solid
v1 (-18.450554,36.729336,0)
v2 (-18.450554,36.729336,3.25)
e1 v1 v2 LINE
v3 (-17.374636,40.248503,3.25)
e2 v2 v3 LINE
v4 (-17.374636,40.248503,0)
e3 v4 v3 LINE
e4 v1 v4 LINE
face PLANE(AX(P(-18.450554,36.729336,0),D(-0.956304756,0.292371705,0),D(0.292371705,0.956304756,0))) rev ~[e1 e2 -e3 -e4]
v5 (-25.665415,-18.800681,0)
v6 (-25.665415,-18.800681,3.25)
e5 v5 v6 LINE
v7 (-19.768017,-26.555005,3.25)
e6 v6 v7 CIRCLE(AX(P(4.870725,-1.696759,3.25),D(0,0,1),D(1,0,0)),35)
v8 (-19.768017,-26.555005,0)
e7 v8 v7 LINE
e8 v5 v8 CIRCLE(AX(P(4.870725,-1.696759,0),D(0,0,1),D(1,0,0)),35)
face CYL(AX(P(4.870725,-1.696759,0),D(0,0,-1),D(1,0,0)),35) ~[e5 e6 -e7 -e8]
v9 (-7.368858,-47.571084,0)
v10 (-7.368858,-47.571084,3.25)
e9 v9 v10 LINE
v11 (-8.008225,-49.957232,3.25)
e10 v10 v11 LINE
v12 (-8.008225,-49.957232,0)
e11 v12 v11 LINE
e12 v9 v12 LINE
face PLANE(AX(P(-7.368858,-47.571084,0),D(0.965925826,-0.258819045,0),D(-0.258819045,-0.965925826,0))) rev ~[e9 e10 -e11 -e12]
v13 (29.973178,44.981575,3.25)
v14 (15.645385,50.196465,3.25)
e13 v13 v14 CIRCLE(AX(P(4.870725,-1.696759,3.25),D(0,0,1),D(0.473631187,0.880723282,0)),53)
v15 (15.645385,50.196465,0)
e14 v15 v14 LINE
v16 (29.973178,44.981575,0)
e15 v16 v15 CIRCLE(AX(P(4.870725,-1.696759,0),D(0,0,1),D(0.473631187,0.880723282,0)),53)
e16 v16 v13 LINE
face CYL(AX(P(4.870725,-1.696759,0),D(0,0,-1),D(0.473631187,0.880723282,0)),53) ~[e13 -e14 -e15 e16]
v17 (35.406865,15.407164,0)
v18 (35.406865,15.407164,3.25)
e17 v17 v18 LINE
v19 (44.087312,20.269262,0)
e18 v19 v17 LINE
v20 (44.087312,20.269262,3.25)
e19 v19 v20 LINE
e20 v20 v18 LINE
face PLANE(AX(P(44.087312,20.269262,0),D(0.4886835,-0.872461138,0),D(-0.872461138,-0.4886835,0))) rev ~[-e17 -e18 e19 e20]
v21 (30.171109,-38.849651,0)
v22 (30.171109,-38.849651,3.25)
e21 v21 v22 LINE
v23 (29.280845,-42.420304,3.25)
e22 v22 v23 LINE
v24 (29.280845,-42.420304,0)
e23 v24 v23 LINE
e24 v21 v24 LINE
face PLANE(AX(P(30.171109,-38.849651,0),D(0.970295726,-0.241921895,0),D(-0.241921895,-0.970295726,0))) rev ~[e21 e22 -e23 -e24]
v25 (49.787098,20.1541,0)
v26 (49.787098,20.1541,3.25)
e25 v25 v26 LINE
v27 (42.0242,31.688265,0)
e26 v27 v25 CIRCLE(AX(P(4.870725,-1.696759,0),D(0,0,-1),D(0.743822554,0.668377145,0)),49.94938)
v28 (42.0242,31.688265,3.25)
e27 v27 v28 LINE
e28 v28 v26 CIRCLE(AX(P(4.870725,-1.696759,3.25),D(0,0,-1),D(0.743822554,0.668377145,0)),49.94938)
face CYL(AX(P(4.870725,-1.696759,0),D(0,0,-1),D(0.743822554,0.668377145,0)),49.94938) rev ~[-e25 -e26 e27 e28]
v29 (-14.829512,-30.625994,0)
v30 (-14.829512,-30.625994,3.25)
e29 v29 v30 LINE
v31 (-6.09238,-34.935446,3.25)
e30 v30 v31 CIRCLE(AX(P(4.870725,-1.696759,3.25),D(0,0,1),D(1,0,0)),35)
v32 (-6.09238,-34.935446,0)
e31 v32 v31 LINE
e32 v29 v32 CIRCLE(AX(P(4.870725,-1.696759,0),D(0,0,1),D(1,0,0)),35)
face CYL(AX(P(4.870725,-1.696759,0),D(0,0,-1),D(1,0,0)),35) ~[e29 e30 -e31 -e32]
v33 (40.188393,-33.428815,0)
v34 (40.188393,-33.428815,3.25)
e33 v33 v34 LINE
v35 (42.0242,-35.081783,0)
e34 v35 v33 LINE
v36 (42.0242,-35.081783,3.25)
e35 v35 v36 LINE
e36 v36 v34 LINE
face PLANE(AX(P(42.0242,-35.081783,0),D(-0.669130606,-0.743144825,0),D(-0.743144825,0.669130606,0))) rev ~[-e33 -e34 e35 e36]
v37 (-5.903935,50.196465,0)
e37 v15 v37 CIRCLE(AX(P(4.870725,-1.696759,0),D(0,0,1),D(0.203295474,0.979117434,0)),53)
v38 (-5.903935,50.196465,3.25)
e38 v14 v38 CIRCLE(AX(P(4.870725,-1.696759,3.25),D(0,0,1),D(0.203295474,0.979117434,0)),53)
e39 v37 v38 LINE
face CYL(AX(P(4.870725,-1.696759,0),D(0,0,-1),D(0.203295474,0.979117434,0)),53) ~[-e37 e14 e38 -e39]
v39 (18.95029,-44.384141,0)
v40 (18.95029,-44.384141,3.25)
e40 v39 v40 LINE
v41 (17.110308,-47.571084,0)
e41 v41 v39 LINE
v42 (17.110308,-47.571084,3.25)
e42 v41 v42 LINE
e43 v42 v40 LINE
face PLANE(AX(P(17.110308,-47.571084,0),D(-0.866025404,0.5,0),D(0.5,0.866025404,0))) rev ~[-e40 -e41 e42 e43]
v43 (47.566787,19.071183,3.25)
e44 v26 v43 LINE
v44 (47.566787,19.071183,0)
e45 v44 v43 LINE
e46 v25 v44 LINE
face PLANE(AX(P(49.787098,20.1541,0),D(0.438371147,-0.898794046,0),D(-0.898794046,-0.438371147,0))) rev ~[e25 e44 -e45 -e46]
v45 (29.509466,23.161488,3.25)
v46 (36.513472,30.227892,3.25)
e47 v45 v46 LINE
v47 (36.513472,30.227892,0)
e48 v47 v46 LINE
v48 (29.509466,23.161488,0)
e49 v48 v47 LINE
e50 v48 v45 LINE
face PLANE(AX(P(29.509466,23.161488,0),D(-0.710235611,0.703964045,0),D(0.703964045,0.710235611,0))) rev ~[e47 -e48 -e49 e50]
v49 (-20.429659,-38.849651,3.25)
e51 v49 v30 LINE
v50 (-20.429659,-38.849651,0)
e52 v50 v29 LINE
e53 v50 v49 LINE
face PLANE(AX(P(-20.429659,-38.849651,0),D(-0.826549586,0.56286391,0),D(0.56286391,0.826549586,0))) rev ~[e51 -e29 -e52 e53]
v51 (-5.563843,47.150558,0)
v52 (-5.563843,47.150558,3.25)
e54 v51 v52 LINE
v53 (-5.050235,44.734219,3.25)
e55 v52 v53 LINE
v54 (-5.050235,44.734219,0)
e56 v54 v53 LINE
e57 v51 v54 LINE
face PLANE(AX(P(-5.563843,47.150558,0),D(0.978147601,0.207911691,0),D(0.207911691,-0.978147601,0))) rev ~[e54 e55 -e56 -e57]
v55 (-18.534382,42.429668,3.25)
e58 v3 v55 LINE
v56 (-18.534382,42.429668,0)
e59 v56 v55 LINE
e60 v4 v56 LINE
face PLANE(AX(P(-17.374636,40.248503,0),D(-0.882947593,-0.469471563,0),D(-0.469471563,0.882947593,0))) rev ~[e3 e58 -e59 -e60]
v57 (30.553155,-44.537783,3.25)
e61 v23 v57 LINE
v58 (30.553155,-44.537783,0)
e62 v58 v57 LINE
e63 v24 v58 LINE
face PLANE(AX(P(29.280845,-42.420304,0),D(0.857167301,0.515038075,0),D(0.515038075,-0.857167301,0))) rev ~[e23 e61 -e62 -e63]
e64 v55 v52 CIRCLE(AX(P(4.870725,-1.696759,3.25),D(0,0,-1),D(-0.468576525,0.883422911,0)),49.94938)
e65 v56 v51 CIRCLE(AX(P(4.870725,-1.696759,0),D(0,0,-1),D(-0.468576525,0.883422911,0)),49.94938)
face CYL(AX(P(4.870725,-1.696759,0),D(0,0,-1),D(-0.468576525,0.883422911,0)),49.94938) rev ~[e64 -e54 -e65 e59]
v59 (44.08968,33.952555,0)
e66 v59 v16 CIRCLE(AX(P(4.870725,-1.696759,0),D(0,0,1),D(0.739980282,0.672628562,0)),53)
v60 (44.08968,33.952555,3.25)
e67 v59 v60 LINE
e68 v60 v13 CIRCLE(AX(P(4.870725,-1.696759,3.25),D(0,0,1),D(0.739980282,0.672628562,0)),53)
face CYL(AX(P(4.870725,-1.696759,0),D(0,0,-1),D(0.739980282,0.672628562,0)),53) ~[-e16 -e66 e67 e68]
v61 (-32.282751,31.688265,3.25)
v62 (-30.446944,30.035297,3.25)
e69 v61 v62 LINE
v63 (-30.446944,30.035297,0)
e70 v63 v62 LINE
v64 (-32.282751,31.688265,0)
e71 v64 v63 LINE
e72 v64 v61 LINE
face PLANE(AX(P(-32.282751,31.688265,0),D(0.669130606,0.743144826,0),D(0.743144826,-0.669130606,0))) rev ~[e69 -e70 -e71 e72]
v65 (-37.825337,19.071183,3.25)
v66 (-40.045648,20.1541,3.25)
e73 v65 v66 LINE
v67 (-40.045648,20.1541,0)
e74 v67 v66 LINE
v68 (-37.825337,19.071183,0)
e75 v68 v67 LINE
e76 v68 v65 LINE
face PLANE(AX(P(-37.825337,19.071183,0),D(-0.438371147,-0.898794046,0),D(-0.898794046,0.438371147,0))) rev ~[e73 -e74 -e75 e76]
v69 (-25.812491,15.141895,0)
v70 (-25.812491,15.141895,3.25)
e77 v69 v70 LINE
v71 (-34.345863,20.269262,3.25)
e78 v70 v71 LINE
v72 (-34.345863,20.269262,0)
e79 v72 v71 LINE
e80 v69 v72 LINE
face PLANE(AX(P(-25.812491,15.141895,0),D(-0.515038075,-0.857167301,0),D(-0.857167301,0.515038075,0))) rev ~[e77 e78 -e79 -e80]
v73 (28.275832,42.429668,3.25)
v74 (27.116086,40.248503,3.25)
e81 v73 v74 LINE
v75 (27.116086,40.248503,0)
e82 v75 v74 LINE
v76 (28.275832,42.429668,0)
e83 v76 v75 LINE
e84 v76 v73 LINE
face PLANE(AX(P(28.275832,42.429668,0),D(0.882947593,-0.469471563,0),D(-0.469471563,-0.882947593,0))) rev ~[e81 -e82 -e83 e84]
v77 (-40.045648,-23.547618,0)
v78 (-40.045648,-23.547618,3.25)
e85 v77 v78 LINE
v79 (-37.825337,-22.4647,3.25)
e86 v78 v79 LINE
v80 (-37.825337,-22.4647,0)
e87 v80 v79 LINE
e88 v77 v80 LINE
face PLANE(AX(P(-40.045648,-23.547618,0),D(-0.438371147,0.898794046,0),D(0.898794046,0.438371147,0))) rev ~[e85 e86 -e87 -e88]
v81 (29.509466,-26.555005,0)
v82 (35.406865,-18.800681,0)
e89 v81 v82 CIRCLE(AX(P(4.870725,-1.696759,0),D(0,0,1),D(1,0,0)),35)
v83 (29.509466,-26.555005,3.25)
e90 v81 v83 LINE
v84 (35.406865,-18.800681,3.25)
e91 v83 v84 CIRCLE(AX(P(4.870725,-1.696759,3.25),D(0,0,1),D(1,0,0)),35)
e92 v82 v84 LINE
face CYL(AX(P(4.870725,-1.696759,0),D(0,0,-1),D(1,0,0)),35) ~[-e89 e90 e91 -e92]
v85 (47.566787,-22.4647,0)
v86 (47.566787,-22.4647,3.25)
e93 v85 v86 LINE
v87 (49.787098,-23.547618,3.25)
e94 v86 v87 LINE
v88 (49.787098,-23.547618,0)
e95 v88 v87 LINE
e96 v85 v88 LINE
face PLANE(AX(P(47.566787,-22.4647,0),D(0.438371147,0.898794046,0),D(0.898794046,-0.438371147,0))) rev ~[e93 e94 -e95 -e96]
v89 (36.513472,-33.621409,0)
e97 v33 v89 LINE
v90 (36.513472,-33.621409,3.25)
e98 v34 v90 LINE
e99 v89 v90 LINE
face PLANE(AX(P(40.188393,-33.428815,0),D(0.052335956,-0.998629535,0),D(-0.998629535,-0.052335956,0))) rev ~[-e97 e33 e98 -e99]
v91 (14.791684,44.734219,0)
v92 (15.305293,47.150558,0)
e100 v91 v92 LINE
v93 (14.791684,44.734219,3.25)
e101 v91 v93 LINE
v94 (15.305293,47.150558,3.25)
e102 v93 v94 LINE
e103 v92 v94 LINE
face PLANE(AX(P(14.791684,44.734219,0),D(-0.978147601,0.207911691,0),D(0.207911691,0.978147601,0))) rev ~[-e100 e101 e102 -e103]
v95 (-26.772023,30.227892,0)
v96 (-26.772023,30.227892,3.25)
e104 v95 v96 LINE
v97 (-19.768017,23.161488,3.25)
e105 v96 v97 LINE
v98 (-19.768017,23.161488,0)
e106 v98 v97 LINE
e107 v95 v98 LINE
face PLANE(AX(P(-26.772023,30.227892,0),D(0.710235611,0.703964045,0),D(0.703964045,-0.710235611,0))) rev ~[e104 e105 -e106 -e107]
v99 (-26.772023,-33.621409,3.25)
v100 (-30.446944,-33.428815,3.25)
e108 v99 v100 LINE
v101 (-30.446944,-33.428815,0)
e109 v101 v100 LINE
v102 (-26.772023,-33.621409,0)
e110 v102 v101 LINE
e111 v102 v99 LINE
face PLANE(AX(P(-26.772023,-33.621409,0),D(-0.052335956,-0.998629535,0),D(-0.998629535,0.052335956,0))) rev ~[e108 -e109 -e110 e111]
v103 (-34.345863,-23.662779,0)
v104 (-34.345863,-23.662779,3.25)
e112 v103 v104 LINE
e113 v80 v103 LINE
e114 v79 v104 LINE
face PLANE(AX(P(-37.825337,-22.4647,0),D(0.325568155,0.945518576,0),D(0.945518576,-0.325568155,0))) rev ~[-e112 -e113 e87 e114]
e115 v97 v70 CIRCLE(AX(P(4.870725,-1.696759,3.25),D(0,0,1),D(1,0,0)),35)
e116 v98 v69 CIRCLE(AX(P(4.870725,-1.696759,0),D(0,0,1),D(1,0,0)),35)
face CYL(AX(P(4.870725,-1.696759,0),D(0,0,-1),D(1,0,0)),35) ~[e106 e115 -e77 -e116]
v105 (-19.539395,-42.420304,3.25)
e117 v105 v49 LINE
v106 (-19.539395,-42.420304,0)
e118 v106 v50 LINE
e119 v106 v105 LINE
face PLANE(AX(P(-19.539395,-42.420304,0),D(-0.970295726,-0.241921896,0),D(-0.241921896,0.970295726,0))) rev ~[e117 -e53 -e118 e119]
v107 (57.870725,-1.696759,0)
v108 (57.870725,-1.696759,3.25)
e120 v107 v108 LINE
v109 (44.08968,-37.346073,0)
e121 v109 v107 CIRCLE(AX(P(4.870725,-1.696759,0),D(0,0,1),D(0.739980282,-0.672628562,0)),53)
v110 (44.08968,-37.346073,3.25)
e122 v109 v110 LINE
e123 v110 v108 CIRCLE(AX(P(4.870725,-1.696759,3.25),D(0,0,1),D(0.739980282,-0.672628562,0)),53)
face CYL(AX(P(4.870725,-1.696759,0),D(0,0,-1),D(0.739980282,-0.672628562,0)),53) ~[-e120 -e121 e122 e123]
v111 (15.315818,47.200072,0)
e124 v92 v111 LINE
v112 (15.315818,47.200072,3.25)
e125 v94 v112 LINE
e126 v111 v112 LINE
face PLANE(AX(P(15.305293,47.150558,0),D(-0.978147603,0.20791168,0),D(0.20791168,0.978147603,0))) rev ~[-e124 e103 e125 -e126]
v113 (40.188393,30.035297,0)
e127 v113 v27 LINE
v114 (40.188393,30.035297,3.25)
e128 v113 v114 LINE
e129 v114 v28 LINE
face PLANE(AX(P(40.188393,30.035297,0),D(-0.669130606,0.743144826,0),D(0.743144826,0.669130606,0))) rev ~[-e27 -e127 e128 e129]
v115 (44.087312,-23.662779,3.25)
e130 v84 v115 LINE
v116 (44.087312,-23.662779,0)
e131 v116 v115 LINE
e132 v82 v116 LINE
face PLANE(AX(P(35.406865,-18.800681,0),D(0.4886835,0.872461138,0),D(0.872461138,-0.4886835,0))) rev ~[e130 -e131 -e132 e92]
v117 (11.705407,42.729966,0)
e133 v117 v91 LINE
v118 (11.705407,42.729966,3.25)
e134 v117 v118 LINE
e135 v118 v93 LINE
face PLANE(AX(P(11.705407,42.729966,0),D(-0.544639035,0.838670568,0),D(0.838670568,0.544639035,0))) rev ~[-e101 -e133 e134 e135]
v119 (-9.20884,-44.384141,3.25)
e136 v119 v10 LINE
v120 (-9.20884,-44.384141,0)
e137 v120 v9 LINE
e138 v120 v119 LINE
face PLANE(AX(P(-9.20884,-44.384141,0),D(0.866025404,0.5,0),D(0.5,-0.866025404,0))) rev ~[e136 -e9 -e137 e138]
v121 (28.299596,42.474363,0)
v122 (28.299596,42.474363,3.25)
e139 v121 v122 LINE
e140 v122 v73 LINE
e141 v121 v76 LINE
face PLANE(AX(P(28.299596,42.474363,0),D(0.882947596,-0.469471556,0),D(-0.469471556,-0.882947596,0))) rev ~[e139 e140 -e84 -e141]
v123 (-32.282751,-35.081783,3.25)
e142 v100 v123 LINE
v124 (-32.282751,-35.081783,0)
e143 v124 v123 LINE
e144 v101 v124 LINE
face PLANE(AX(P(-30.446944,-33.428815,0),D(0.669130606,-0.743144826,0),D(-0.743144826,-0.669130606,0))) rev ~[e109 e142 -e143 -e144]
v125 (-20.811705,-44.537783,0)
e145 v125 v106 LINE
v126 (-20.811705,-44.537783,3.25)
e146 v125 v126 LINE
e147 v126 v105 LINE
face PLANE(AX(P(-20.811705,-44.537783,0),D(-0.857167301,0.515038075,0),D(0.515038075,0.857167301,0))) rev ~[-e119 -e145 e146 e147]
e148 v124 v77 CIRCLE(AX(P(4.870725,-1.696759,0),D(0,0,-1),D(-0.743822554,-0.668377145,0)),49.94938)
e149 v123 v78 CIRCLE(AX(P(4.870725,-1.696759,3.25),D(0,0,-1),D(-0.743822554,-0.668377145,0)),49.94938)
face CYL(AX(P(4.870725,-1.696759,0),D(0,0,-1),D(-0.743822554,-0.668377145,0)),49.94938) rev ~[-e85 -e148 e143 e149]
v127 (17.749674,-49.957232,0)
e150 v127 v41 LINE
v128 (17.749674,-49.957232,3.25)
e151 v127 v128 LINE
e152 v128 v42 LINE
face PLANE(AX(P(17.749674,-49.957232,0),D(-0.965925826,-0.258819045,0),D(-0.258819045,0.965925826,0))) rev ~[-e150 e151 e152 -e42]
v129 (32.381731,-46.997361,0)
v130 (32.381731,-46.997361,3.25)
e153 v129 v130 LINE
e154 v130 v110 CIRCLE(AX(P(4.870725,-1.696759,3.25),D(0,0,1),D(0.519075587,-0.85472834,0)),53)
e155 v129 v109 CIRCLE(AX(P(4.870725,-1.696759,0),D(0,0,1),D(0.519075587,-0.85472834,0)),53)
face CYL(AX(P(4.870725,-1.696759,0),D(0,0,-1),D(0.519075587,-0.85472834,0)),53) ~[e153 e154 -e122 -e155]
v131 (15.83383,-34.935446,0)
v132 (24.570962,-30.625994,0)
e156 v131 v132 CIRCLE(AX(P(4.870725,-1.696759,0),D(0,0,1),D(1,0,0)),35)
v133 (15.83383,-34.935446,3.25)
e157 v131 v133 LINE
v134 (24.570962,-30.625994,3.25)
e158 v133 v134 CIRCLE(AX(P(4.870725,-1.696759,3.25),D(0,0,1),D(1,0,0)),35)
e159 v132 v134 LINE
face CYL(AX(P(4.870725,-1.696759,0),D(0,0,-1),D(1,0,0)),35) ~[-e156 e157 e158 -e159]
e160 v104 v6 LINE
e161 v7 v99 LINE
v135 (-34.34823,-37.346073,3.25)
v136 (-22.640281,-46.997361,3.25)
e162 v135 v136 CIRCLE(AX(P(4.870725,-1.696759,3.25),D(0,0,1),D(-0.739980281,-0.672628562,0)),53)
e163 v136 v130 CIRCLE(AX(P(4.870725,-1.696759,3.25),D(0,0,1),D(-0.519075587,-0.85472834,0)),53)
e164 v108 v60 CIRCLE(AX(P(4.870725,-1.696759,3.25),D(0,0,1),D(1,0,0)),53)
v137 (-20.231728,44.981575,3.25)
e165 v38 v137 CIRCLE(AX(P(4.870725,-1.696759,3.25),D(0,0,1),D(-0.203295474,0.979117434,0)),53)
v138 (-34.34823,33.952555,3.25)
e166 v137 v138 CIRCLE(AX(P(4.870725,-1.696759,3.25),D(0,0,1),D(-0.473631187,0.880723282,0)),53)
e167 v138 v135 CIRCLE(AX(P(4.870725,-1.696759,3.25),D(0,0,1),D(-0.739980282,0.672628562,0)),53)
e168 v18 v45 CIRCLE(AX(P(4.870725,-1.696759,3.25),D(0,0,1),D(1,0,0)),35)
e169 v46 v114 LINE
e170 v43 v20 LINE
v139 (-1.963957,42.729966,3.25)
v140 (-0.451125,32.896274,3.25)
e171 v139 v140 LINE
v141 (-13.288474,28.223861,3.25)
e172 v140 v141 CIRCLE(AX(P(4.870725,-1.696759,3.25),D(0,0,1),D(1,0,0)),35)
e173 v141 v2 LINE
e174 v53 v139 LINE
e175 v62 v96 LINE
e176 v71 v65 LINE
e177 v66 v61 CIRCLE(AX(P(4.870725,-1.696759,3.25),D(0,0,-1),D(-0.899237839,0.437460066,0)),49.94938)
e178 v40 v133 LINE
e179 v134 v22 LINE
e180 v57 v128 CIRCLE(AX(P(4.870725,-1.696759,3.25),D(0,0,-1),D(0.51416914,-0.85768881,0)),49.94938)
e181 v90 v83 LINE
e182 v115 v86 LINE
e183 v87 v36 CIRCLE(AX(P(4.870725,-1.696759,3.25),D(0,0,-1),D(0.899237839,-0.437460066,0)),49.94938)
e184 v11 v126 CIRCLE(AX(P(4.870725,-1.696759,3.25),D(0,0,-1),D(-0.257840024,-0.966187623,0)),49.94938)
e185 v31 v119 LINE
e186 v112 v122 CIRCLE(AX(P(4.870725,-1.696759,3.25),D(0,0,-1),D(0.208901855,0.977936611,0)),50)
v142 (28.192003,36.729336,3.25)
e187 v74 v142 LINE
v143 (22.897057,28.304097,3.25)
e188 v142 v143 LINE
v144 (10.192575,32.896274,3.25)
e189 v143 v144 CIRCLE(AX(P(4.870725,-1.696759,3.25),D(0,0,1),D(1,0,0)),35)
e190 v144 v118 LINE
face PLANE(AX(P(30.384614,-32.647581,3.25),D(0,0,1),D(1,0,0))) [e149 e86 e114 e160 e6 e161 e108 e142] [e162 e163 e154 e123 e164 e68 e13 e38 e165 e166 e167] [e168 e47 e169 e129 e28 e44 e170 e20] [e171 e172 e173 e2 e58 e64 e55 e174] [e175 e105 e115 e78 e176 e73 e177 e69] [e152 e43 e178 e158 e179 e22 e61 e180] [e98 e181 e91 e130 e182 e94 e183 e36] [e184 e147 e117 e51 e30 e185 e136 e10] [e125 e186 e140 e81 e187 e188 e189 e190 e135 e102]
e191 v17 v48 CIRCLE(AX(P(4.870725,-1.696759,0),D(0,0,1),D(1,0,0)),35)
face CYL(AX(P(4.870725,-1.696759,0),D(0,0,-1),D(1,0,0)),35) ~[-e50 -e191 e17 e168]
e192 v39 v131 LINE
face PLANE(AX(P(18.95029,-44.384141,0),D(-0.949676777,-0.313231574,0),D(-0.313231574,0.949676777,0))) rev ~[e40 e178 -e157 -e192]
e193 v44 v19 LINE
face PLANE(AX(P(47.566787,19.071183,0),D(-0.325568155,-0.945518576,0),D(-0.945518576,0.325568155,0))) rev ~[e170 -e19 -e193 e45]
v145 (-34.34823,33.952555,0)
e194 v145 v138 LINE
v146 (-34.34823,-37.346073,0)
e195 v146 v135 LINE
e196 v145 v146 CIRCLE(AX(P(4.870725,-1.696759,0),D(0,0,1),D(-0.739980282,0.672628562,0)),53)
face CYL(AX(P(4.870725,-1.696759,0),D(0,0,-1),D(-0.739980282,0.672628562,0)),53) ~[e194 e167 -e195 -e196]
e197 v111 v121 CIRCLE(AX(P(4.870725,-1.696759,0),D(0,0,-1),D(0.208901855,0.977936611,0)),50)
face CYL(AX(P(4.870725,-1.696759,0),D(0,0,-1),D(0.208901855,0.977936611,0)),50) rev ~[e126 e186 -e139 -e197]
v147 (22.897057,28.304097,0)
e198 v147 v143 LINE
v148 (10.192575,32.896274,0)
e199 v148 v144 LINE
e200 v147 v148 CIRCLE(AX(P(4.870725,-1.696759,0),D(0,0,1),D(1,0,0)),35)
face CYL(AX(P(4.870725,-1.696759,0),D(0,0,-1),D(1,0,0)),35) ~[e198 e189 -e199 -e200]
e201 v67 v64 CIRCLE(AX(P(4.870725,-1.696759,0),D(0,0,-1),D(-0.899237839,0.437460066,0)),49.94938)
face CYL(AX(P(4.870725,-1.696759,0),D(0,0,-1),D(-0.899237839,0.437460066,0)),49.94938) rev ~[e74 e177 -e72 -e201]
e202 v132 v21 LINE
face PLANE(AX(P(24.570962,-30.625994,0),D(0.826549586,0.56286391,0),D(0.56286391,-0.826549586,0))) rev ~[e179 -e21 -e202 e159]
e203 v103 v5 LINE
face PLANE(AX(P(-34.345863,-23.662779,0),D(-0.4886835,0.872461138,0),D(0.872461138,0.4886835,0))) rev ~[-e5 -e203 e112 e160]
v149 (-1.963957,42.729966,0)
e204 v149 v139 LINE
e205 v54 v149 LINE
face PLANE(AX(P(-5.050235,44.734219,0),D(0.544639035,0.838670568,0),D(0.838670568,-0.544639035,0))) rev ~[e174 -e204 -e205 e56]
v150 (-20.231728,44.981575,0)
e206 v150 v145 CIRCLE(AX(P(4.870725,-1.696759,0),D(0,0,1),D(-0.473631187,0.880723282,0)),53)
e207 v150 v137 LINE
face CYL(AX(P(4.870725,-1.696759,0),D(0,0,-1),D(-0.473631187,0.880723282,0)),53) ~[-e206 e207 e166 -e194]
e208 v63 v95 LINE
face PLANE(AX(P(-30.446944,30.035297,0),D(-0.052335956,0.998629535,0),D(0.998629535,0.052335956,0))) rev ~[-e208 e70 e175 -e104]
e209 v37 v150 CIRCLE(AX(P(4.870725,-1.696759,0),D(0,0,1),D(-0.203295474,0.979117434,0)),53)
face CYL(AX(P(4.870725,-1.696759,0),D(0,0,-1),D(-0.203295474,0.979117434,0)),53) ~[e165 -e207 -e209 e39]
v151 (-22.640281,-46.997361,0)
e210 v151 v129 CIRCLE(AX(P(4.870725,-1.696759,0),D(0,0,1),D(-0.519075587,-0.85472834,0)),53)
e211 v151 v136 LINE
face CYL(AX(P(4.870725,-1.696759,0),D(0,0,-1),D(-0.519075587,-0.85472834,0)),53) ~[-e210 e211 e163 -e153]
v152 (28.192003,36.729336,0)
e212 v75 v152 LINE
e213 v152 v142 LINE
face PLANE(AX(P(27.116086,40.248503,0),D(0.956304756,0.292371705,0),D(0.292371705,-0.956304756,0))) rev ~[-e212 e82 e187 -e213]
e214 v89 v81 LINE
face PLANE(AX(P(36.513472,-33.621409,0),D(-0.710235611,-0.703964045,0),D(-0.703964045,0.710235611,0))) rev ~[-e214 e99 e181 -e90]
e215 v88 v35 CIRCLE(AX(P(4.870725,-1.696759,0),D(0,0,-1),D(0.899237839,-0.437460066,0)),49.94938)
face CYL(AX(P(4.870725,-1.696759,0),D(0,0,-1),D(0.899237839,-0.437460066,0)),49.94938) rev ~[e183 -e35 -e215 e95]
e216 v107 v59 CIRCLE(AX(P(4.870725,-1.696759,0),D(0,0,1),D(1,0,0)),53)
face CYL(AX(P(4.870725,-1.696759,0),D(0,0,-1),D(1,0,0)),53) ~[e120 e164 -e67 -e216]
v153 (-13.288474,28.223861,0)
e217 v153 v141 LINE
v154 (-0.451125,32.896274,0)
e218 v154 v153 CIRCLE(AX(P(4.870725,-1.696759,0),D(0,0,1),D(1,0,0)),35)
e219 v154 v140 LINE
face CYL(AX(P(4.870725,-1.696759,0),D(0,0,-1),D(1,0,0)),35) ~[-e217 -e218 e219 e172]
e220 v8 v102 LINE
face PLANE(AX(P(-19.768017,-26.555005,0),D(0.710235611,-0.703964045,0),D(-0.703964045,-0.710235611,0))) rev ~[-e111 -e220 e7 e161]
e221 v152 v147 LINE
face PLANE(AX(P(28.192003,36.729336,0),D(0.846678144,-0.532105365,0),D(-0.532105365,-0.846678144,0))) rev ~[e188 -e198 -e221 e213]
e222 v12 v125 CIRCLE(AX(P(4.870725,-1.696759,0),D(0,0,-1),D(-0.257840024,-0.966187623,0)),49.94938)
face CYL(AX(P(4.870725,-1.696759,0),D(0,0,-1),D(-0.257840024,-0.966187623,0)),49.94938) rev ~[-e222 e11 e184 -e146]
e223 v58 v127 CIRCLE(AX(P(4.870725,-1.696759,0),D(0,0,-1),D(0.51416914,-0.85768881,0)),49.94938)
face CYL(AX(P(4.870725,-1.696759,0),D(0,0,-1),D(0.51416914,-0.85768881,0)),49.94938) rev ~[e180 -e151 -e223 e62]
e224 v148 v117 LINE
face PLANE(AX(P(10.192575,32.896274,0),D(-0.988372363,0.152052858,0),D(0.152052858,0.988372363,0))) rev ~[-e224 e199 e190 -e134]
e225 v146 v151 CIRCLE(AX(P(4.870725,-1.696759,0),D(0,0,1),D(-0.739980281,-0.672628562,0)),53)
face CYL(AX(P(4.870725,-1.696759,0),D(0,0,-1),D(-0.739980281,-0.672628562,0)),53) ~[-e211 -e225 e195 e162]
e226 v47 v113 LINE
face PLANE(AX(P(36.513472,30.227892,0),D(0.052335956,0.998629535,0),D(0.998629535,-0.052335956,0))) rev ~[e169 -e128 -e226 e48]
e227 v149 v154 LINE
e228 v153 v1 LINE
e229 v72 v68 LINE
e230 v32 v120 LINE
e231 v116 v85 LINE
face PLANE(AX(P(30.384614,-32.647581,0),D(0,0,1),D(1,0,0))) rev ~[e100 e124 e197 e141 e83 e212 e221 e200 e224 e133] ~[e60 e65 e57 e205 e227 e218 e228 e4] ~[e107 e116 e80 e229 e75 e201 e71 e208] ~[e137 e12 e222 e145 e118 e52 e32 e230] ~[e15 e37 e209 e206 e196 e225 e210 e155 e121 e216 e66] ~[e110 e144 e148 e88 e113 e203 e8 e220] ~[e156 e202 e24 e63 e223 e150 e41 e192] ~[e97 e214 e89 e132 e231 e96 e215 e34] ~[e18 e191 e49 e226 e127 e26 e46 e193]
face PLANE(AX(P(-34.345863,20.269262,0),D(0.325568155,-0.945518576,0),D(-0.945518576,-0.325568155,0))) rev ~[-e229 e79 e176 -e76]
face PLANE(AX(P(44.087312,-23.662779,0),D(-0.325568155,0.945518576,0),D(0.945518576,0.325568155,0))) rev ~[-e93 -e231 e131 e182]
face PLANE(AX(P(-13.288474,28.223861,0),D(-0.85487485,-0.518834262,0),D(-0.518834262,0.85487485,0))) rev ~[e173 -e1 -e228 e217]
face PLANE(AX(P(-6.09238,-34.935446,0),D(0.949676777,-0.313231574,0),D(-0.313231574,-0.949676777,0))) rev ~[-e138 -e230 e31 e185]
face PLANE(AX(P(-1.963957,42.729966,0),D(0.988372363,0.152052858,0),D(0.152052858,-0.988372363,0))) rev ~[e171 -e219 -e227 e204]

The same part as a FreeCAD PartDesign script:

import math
import FreeCAD as App
import Part
import Sketcher
from FreeCAD import Vector
Q = App.Units.Quantity

doc = App.newDocument("Part")
body = doc.addObject("PartDesign::Body", "Body")

sketch1 = body.newObject("Sketcher::SketchObject", "Sketch")
sketch1.AttachmentSupport = (doc.getObject("XY_Plane"), [""])
sketch1.MapMode = "FlatFace"
sketch1.addGeometry([
    Part.ArcOfCircle(Part.Circle(Vector(4.870725, -1.696759, 0), Vector(0, 0, 1), 53), math.radians(-121.270264), math.radians(-58.729736)),
    Part.ArcOfCircle(Part.Circle(Vector(4.870725, -1.696759, 0), Vector(0, 0, 1), 53), math.radians(-58.729736), math.radians(-42.270264)),
    Part.ArcOfCircle(Part.Circle(Vector(4.870725, -1.696759, 0), Vector(0, 0, 1), 53), math.radians(-42.270264), math.radians(0)),
    Part.ArcOfCircle(Part.Circle(Vector(4.870725, -1.696759, 0), Vector(0, 0, 1), 53), math.radians(0), math.radians(42.270264)),
    Part.ArcOfCircle(Part.Circle(Vector(4.870725, -1.696759, 0), Vector(0, 0, 1), 53), math.radians(42.270264), math.radians(61.729736)),
    Part.ArcOfCircle(Part.Circle(Vector(4.870725, -1.696759, 0), Vector(0, 0, 1), 53), math.radians(61.729736), math.radians(78.270264)),
    Part.ArcOfCircle(Part.Circle(Vector(4.870725, -1.696759, 0), Vector(0, 0, 1), 53), math.radians(78.270264), math.radians(101.729736)),
    Part.ArcOfCircle(Part.Circle(Vector(4.870725, -1.696759, 0), Vector(0, 0, 1), 53), math.radians(101.729736), math.radians(118.270264)),
    Part.ArcOfCircle(Part.Circle(Vector(4.870725, -1.696759, 0), Vector(0, 0, 1), 53), math.radians(118.270264), math.radians(137.729736)),
    Part.ArcOfCircle(Part.Circle(Vector(4.870725, -1.696759, 0), Vector(0, 0, 1), 53), math.radians(137.729736), math.radians(222.270264)),
    Part.ArcOfCircle(Part.Circle(Vector(4.870725, -1.696759, 0), Vector(0, 0, 1), 53), math.radians(-137.729736), math.radians(-121.270264)),
    Part.ArcOfCircle(Part.Circle(Vector(4.870725, -1.696759, 0), Vector(0, 0, 1), 49.94938), math.radians(25.941935), math.radians(41.941935)),
    Part.LineSegment(Vector(49.787098, 20.1541, 0), Vector(47.566787, 19.071183, 0)),
    Part.LineSegment(Vector(47.566787, 19.071183, 0), Vector(44.087312, 20.269262, 0)),
    Part.LineSegment(Vector(44.087312, 20.269262, 0), Vector(35.406865, 15.407164, 0)),
    Part.ArcOfCircle(Part.Circle(Vector(4.870725, -1.696759, 0), Vector(0, 0, 1), 35), math.radians(29.254089), math.radians(45.254089)),
    Part.LineSegment(Vector(29.509466, 23.161488, 0), Vector(36.513472, 30.227892, 0)),
    Part.LineSegment(Vector(36.513472, 30.227892, 0), Vector(40.188393, 30.035297, 0)),
    Part.LineSegment(Vector(40.188393, 30.035297, 0), Vector(42.0242, 31.688265, 0)),
    Part.LineSegment(Vector(28.299596, 42.474363, 0), Vector(28.275832, 42.429668, 0)),
    Part.LineSegment(Vector(28.275832, 42.429668, 0), Vector(27.116086, 40.248503, 0)),
    Part.LineSegment(Vector(27.116086, 40.248503, 0), Vector(28.192003, 36.729336, 0)),
    Part.LineSegment(Vector(28.192003, 36.729336, 0), Vector(22.897057, 28.304097, 0)),
    Part.ArcOfCircle(Part.Circle(Vector(4.870725, -1.696759, 0), Vector(0, 0, 1), 35), math.radians(59), math.radians(81.254089)),
    Part.LineSegment(Vector(10.192575, 32.896274, 0), Vector(11.705407, 42.729966, 0)),
    Part.LineSegment(Vector(11.705407, 42.729966, 0), Vector(14.791684, 44.734219, 0)),
    Part.LineSegment(Vector(14.791684, 44.734219, 0), Vector(15.305293, 47.150558, 0)),
    Part.LineSegment(Vector(15.305293, 47.150558, 0), Vector(15.315818, 47.200072, 0)),
    Part.ArcOfCircle(Part.Circle(Vector(4.870725, -1.696759, 0), Vector(0, 0, 1), 50), math.radians(62.058006), math.radians(77.941994)),
    Part.ArcOfCircle(Part.Circle(Vector(4.870725, -1.696759, 0), Vector(0, 0, 1), 49.94938), math.radians(102.058065), math.radians(117.941935)),
    Part.LineSegment(Vector(-5.563843, 47.150558, 0), Vector(-5.050235, 44.734219, 0)),
    Part.LineSegment(Vector(-5.050235, 44.734219, 0), Vector(-1.963957, 42.729966, 0)),
    Part.LineSegment(Vector(-1.963957, 42.729966, 0), Vector(-0.451125, 32.896274, 0)),
    Part.ArcOfCircle(Part.Circle(Vector(4.870725, -1.696759, 0), Vector(0, 0, 1), 35), math.radians(98.745911), math.radians(121.254089)),
    Part.LineSegment(Vector(-13.288474, 28.223861, 0), Vector(-18.450554, 36.729336, 0)),
    Part.LineSegment(Vector(-18.450554, 36.729336, 0), Vector(-17.374636, 40.248503, 0)),
    Part.LineSegment(Vector(-17.374636, 40.248503, 0), Vector(-18.534382, 42.429668, 0)),
    Part.ArcOfCircle(Part.Circle(Vector(4.870725, -1.696759, 0), Vector(0, 0, 1), 49.94938), math.radians(138.058065), math.radians(154.058065)),
    Part.LineSegment(Vector(-32.282751, 31.688265, 0), Vector(-30.446944, 30.035297, 0)),
    Part.LineSegment(Vector(-30.446944, 30.035297, 0), Vector(-26.772023, 30.227892, 0)),
    Part.LineSegment(Vector(-26.772023, 30.227892, 0), Vector(-19.768017, 23.161488, 0)),
    Part.ArcOfCircle(Part.Circle(Vector(4.870725, -1.696759, 0), Vector(0, 0, 1), 35), math.radians(134.745911), math.radians(151.242444)),
    Part.LineSegment(Vector(-25.812491, 15.141895, 0), Vector(-34.345863, 20.269262, 0)),
    Part.LineSegment(Vector(-34.345863, 20.269262, 0), Vector(-37.825337, 19.071183, 0)),
    Part.LineSegment(Vector(-37.825337, 19.071183, 0), Vector(-40.045648, 20.1541, 0)),
    Part.ArcOfCircle(Part.Circle(Vector(4.870725, -1.696759, 0), Vector(0, 0, 1), 49.94938), math.radians(-154.058065), math.radians(-138.058065)),
    Part.LineSegment(Vector(-40.045648, -23.547618, 0), Vector(-37.825337, -22.4647, 0)),
    Part.LineSegment(Vector(-37.825337, -22.4647, 0), Vector(-34.345863, -23.662779, 0)),
    Part.LineSegment(Vector(-34.345863, -23.662779, 0), Vector(-25.665415, -18.800681, 0)),
    Part.ArcOfCircle(Part.Circle(Vector(4.870725, -1.696759, 0), Vector(0, 0, 1), 35), math.radians(-150.745911), math.radians(-134.745911)),
    Part.LineSegment(Vector(-19.768017, -26.555005, 0), Vector(-26.772023, -33.621409, 0)),
    Part.LineSegment(Vector(-26.772023, -33.621409, 0), Vector(-30.446944, -33.428815, 0)),
    Part.LineSegment(Vector(-30.446944, -33.428815, 0), Vector(-32.282751, -35.081783, 0)),
    Part.ArcOfCircle(Part.Circle(Vector(4.870725, -1.696759, 0), Vector(0, 0, 1), 49.94938), math.radians(-120.941935), math.radians(-104.941935)),
    Part.LineSegment(Vector(-20.811705, -44.537783, 0), Vector(-19.539395, -42.420304, 0)),
    Part.LineSegment(Vector(-19.539395, -42.420304, 0), Vector(-20.429659, -38.849651, 0)),
    Part.LineSegment(Vector(-20.429659, -38.849651, 0), Vector(-14.829512, -30.625994, 0)),
    Part.ArcOfCircle(Part.Circle(Vector(4.870725, -1.696759, 0), Vector(0, 0, 1), 35), math.radians(-124.254089), math.radians(-108.254089)),
    Part.LineSegment(Vector(-6.09238, -34.935446, 0), Vector(-9.20884, -44.384141, 0)),
    Part.LineSegment(Vector(-9.20884, -44.384141, 0), Vector(-7.368858, -47.571084, 0)),
    Part.LineSegment(Vector(-7.368858, -47.571084, 0), Vector(-8.008225, -49.957232, 0)),
    Part.ArcOfCircle(Part.Circle(Vector(4.870725, -1.696759, 0), Vector(0, 0, 1), 49.94938), math.radians(-75.058065), math.radians(-59.058065)),
    Part.LineSegment(Vector(17.749674, -49.957232, 0), Vector(17.110308, -47.571084, 0)),
    Part.LineSegment(Vector(17.110308, -47.571084, 0), Vector(18.95029, -44.384141, 0)),
    Part.LineSegment(Vector(18.95029, -44.384141, 0), Vector(15.83383, -34.935446, 0)),
    Part.ArcOfCircle(Part.Circle(Vector(4.870725, -1.696759, 0), Vector(0, 0, 1), 35), math.radians(-71.745911), math.radians(-55.745911)),
    Part.LineSegment(Vector(24.570962, -30.625994, 0), Vector(30.171109, -38.849651, 0)),
    Part.LineSegment(Vector(30.171109, -38.849651, 0), Vector(29.280845, -42.420304, 0)),
    Part.LineSegment(Vector(29.280845, -42.420304, 0), Vector(30.553155, -44.537783, 0)),
    Part.ArcOfCircle(Part.Circle(Vector(4.870725, -1.696759, 0), Vector(0, 0, 1), 49.94938), math.radians(-41.941935), math.radians(-25.941935)),
    Part.LineSegment(Vector(42.0242, -35.081783, 0), Vector(40.188393, -33.428815, 0)),
    Part.LineSegment(Vector(40.188393, -33.428815, 0), Vector(36.513472, -33.621409, 0)),
    Part.LineSegment(Vector(36.513472, -33.621409, 0), Vector(29.509466, -26.555005, 0)),
    Part.ArcOfCircle(Part.Circle(Vector(4.870725, -1.696759, 0), Vector(0, 0, 1), 35), math.radians(-45.254089), math.radians(-29.254089)),
    Part.LineSegment(Vector(35.406865, -18.800681, 0), Vector(44.087312, -23.662779, 0)),
    Part.LineSegment(Vector(44.087312, -23.662779, 0), Vector(47.566787, -22.4647, 0)),
    Part.LineSegment(Vector(47.566787, -22.4647, 0), Vector(49.787098, -23.547618, 0)),
], False)
sketch1.addConstraint([
    Sketcher.Constraint("Tangent", 0, 2, 1, 1),
    Sketcher.Constraint("Tangent", 1, 2, 2, 1),
    Sketcher.Constraint("Tangent", 2, 2, 3, 1),
    Sketcher.Constraint("Tangent", 3, 2, 4, 1),
    Sketcher.Constraint("Tangent", 4, 2, 5, 1),
    Sketcher.Constraint("Tangent", 5, 2, 6, 1),
    Sketcher.Constraint("Tangent", 6, 2, 7, 1),
    Sketcher.Constraint("Tangent", 7, 2, 8, 1),
    Sketcher.Constraint("Tangent", 8, 2, 9, 1),
    Sketcher.Constraint("Tangent", 9, 2, 10, 1),
    Sketcher.Constraint("Tangent", 10, 2, 0, 1),
    Sketcher.Constraint("Coincident", 11, 1, 12, 1),
    Sketcher.Constraint("Coincident", 12, 2, 13, 1),
    Sketcher.Constraint("Coincident", 13, 2, 14, 1),
    Sketcher.Constraint("Coincident", 14, 2, 15, 1),
    Sketcher.Constraint("Coincident", 15, 2, 16, 1),
    Sketcher.Constraint("Coincident", 16, 2, 17, 1),
    Sketcher.Constraint("Coincident", 17, 2, 18, 1),
    Sketcher.Constraint("Coincident", 18, 2, 11, 2),
    Sketcher.Constraint("Coincident", 19, 2, 20, 1),
    Sketcher.Constraint("Coincident", 20, 2, 21, 1),
    Sketcher.Constraint("Coincident", 21, 2, 22, 1),
    Sketcher.Constraint("Coincident", 22, 2, 23, 1),
    Sketcher.Constraint("Coincident", 23, 2, 24, 1),
    Sketcher.Constraint("Coincident", 24, 2, 25, 1),
    Sketcher.Constraint("Coincident", 25, 2, 26, 1),
    Sketcher.Constraint("Coincident", 26, 2, 27, 1),
    Sketcher.Constraint("Coincident", 27, 2, 28, 2),
    Sketcher.Constraint("Coincident", 28, 1, 19, 1),
    Sketcher.Constraint("Coincident", 29, 1, 30, 1),
    Sketcher.Constraint("Coincident", 30, 2, 31, 1),
    Sketcher.Constraint("Coincident", 31, 2, 32, 1),
    Sketcher.Constraint("Coincident", 32, 2, 33, 1),
    Sketcher.Constraint("Coincident", 33, 2, 34, 1),
    Sketcher.Constraint("Coincident", 34, 2, 35, 1),
    Sketcher.Constraint("Coincident", 35, 2, 36, 1),
    Sketcher.Constraint("Coincident", 36, 2, 29, 2),
    Sketcher.Constraint("Coincident", 37, 1, 38, 1),
    Sketcher.Constraint("Coincident", 38, 2, 39, 1),
    Sketcher.Constraint("Coincident", 39, 2, 40, 1),
    Sketcher.Constraint("Coincident", 40, 2, 41, 1),
    Sketcher.Constraint("Coincident", 41, 2, 42, 1),
    Sketcher.Constraint("Coincident", 42, 2, 43, 1),
    Sketcher.Constraint("Coincident", 43, 2, 44, 1),
    Sketcher.Constraint("Coincident", 44, 2, 37, 2),
    Sketcher.Constraint("Coincident", 45, 1, 46, 1),
    Sketcher.Constraint("Coincident", 46, 2, 47, 1),
    Sketcher.Constraint("Coincident", 47, 2, 48, 1),
    Sketcher.Constraint("Coincident", 48, 2, 49, 1),
    Sketcher.Constraint("Coincident", 49, 2, 50, 1),
    Sketcher.Constraint("Coincident", 50, 2, 51, 1),
    Sketcher.Constraint("Coincident", 51, 2, 52, 1),
    Sketcher.Constraint("Coincident", 52, 2, 45, 2),
    Sketcher.Constraint("Coincident", 53, 1, 54, 1),
    Sketcher.Constraint("Coincident", 54, 2, 55, 1),
    Sketcher.Constraint("Coincident", 55, 2, 56, 1),
    Sketcher.Constraint("Coincident", 56, 2, 57, 1),
    Sketcher.Constraint("Coincident", 57, 2, 58, 1),
    Sketcher.Constraint("Coincident", 58, 2, 59, 1),
    Sketcher.Constraint("Coincident", 59, 2, 60, 1),
    Sketcher.Constraint("Coincident", 60, 2, 53, 2),
    Sketcher.Constraint("Coincident", 61, 1, 62, 1),
    Sketcher.Constraint("Coincident", 62, 2, 63, 1),
    Sketcher.Constraint("Coincident", 63, 2, 64, 1),
    Sketcher.Constraint("Coincident", 64, 2, 65, 1),
    Sketcher.Constraint("Coincident", 65, 2, 66, 1),
    Sketcher.Constraint("Coincident", 66, 2, 67, 1),
    Sketcher.Constraint("Coincident", 67, 2, 68, 1),
    Sketcher.Constraint("Coincident", 68, 2, 61, 2),
    Sketcher.Constraint("Coincident", 69, 1, 70, 1),
    Sketcher.Constraint("Coincident", 70, 2, 71, 1),
    Sketcher.Constraint("Coincident", 71, 2, 72, 1),
    Sketcher.Constraint("Coincident", 72, 2, 73, 1),
    Sketcher.Constraint("Coincident", 73, 2, 74, 1),
    Sketcher.Constraint("Coincident", 74, 2, 75, 1),
    Sketcher.Constraint("Coincident", 75, 2, 76, 1),
    Sketcher.Constraint("Coincident", 76, 2, 69, 2),
    Sketcher.Constraint("Coincident", 2, 3, 0, 3),
    Sketcher.Constraint("Coincident", 4, 3, 0, 3),
    Sketcher.Constraint("Coincident", 6, 3, 0, 3),
    Sketcher.Constraint("Coincident", 8, 3, 0, 3),
    Sketcher.Constraint("Coincident", 11, 3, 0, 3),
    Sketcher.Constraint("Coincident", 15, 3, 0, 3),
    Sketcher.Constraint("Coincident", 23, 3, 0, 3),
    Sketcher.Constraint("Coincident", 28, 3, 0, 3),
    Sketcher.Constraint("Coincident", 29, 3, 0, 3),
    Sketcher.Constraint("Coincident", 33, 3, 0, 3),
    Sketcher.Constraint("Coincident", 37, 3, 0, 3),
    Sketcher.Constraint("Coincident", 41, 3, 0, 3),
    Sketcher.Constraint("Coincident", 45, 3, 0, 3),
    Sketcher.Constraint("Coincident", 49, 3, 0, 3),
    Sketcher.Constraint("Coincident", 53, 3, 0, 3),
    Sketcher.Constraint("Coincident", 57, 3, 0, 3),
    Sketcher.Constraint("Coincident", 61, 3, 0, 3),
    Sketcher.Constraint("Coincident", 65, 3, 0, 3),
    Sketcher.Constraint("Coincident", 69, 3, 0, 3),
    Sketcher.Constraint("Coincident", 73, 3, 0, 3),
    Sketcher.Constraint("Equal", 15, 23),
    Sketcher.Constraint("Equal", 11, 29),
    Sketcher.Constraint("Equal", 23, 33),
    Sketcher.Constraint("Equal", 29, 37),
    Sketcher.Constraint("Equal", 33, 41),
    Sketcher.Constraint("Equal", 37, 45),
    Sketcher.Constraint("Equal", 41, 49),
    Sketcher.Constraint("Equal", 45, 53),
    Sketcher.Constraint("Equal", 49, 57),
    Sketcher.Constraint("Equal", 53, 61),
    Sketcher.Constraint("Equal", 57, 65),
    Sketcher.Constraint("Equal", 61, 69),
    Sketcher.Constraint("Equal", 65, 73),
    Sketcher.Constraint("Parallel", 19, 20),
    Sketcher.Constraint("Parallel", 26, 27),
    Sketcher.Constraint("Parallel", 12, 46),
    Sketcher.Constraint("Parallel", 13, 47),
    Sketcher.Constraint("Parallel", 14, 48),
    Sketcher.Constraint("Parallel", 16, 50),
    Sketcher.Constraint("Parallel", 17, 51),
    Sketcher.Constraint("Parallel", 18, 52),
    Sketcher.Constraint("Perpendicular", 42, 54),
    Sketcher.Constraint("Parallel", 38, 70),
    Sketcher.Constraint("Parallel", 39, 71),
    Sketcher.Constraint("Parallel", 40, 72),
    Sketcher.Constraint("Parallel", 43, 75),
    Sketcher.Constraint("Parallel", 44, 76),
    Sketcher.Constraint("Horizontal", 73, 3, 2, 2),
    Sketcher.Constraint("Horizontal", 5, 2, 6, 2),
    Sketcher.Constraint("Horizontal", 4, 2, 7, 2),
    Sketcher.Constraint("Horizontal", 3, 2, 8, 2),
    Sketcher.Constraint("Horizontal", 1, 2, 9, 2),
    Sketcher.Constraint("Horizontal", 0, 2, 10, 2),
    Sketcher.Constraint("Horizontal", 26, 2, 29, 1),
    Sketcher.Constraint("Horizontal", 25, 2, 30, 2),
    Sketcher.Constraint("Horizontal", 24, 2, 31, 2),
    Sketcher.Constraint("Horizontal", 23, 2, 32, 2),
    Sketcher.Constraint("Horizontal", 21, 2, 34, 2),
    Sketcher.Constraint("Horizontal", 20, 2, 35, 2),
    Sketcher.Constraint("Horizontal", 19, 2, 36, 2),
    Sketcher.Constraint("Horizontal", 18, 2, 37, 1),
    Sketcher.Constraint("Horizontal", 17, 2, 38, 2),
    Sketcher.Constraint("Horizontal", 16, 2, 39, 2),
    Sketcher.Constraint("Horizontal", 15, 2, 40, 2),
    Sketcher.Constraint("Horizontal", 13, 2, 42, 2),
    Sketcher.Constraint("Horizontal", 12, 2, 43, 2),
    Sketcher.Constraint("Horizontal", 11, 1, 44, 2),
    Sketcher.Constraint("Horizontal", 60, 2, 61, 1),
    Sketcher.Constraint("Horizontal", 59, 2, 62, 2),
    Sketcher.Constraint("Horizontal", 58, 2, 63, 2),
    Sketcher.Constraint("Horizontal", 57, 2, 64, 2),
    Sketcher.Constraint("Horizontal", 56, 2, 65, 2),
    Sketcher.Constraint("Horizontal", 55, 2, 66, 2),
    Sketcher.Constraint("Horizontal", 54, 2, 67, 2),
    Sketcher.Constraint("Horizontal", 53, 1, 68, 2),
    Sketcher.Constraint("Horizontal", 52, 2, 69, 1),
    Sketcher.Constraint("Horizontal", 51, 2, 70, 2),
    Sketcher.Constraint("Horizontal", 50, 2, 71, 2),
    Sketcher.Constraint("Horizontal", 48, 2, 73, 2),
    Sketcher.Constraint("Horizontal", 47, 2, 74, 2),
    Sketcher.Constraint("Horizontal", 46, 2, 75, 2),
    Sketcher.Constraint("Horizontal", 45, 1, 76, 2),
    Sketcher.Constraint("Vertical", 1, 2, 3, 2),
    Sketcher.Constraint("Vertical", 44, 2, 45, 1),
    Sketcher.Constraint("Vertical", 43, 2, 46, 2),
    Sketcher.Constraint("Vertical", 42, 2, 47, 2),
    Sketcher.Constraint("Vertical", 40, 2, 49, 2),
    Sketcher.Constraint("Vertical", 39, 2, 50, 2),
    Sketcher.Constraint("Vertical", 38, 2, 51, 2),
    Sketcher.Constraint("Vertical", 37, 1, 52, 2),
    Sketcher.Constraint("Vertical", 17, 2, 70, 2),
    Sketcher.Constraint("Vertical", 14, 2, 73, 2),
    Sketcher.Constraint("Vertical", 13, 2, 74, 2),
    Sketcher.Constraint("Equal", 14, 16),
    Sketcher.Constraint("Equal", 13, 17),
    Sketcher.Constraint("Equal", 12, 18),
    Sketcher.Constraint("Equal", 18, 20),
    Sketcher.Constraint("Equal", 17, 21),
    Sketcher.Constraint("Equal", 16, 24),
    Sketcher.Constraint("Equal", 21, 25),
    Sketcher.Constraint("Equal", 20, 26),
    Sketcher.Constraint("Equal", 19, 27),
    Sketcher.Constraint("Equal", 26, 30),
    Sketcher.Constraint("Equal", 25, 31),
    Sketcher.Constraint("Equal", 24, 32),
    Sketcher.Constraint("Equal", 32, 34),
    Sketcher.Constraint("Equal", 31, 35),
    Sketcher.Constraint("Equal", 30, 36),
    Sketcher.Constraint("Equal", 52, 54),
    Sketcher.Constraint("Equal", 51, 55),
    Sketcher.Constraint("Equal", 50, 56),
    Sketcher.Constraint("Equal", 56, 58),
    Sketcher.Constraint("Equal", 55, 59),
    Sketcher.Constraint("Equal", 54, 60),
    Sketcher.Constraint("Equal", 60, 62),
    Sketcher.Constraint("Equal", 59, 63),
    Sketcher.Constraint("Equal", 64, 66),
    Sketcher.Constraint("Equal", 63, 67),
    Sketcher.Constraint("Radius", 0, Q("53 mm")),
    Sketcher.Constraint("Radius", 15, Q("35 mm")),
    Sketcher.Constraint("Radius", 28, Q("50 mm")),
    Sketcher.Constraint("Angle", 12, Q("-154 deg")),
    Sketcher.Constraint("Angle", 13, Q("161 deg")),
    Sketcher.Constraint("Angle", 17, Q("-3 deg")),
    Sketcher.Constraint("Angle", 18, Q("42 deg")),
    Sketcher.Constraint("Angle", 19, Q("-118 deg")),
    Sketcher.Constraint("Angle", 21, Q("-73 deg")),
    Sketcher.Constraint("Angle", 25, Q("33 deg")),
    Sketcher.Constraint("Angle", 26, Q("78 deg")),
    Sketcher.Constraint("Angle", 42, Q("149 deg")),
    Sketcher.Constraint("Angle", 55, Q("104 deg")),
    Sketcher.Constraint("Angle", 59, Q("-60 deg")),
    Sketcher.Constraint("Angle", 60, Q("-105 deg")),
    Sketcher.Constraint("Radius", 11, Q("49.94938 mm")),
    Sketcher.Constraint("DistanceY", -1, 1, 11, 1, Q("20.1541 mm")),
    Sketcher.Constraint("DistanceX", -1, 1, 18, 2, Q("42.0242 mm")),
    Sketcher.Constraint("DistanceY", 46, 2, -1, 1, Q("22.4647 mm")),
    Sketcher.Constraint("Distance", 14, Q("9.94938 mm")),
    Sketcher.Constraint("DistanceY", 0, 3, -1, 1, Q("1.696759 mm")),
    Sketcher.Constraint("DistanceX", -1, 1, 0, 2, Q("32.381731 mm")),
    Sketcher.Constraint("DistanceX", -1, 1, 1, 2, Q("44.08968 mm")),
    Sketcher.Constraint("DistanceX", 7, 2, -1, 1, Q("20.231728 mm")),
    Sketcher.Constraint("DistanceY", -1, 1, 33, 2, Q("28.223861 mm")),
    Sketcher.Constraint("DistanceY", 48, 2, -1, 1, Q("18.800681 mm")),
    Sketcher.Constraint("DistanceX", 56, 2, -1, 1, Q("14.829512 mm")),
    Sketcher.Constraint("DistanceX", 57, 2, -1, 1, Q("6.09238 mm")),
    Sketcher.Constraint("Distance", 22, Q("9.950935 mm")),
    Sketcher.Constraint("DistanceX", -1, 1, 5, 2, Q("15.645385 mm")),
    Sketcher.Constraint("DistanceX", -1, 1, 15, 2, Q("29.509466 mm")),
    Sketcher.Constraint("DistanceX", -1, 1, 23, 2, Q("10.192575 mm")),
])
pad1 = body.newObject("PartDesign::Pad", "Pad")
pad1.Profile = sketch1
pad1.Length = 3.25

doc.recompute()
